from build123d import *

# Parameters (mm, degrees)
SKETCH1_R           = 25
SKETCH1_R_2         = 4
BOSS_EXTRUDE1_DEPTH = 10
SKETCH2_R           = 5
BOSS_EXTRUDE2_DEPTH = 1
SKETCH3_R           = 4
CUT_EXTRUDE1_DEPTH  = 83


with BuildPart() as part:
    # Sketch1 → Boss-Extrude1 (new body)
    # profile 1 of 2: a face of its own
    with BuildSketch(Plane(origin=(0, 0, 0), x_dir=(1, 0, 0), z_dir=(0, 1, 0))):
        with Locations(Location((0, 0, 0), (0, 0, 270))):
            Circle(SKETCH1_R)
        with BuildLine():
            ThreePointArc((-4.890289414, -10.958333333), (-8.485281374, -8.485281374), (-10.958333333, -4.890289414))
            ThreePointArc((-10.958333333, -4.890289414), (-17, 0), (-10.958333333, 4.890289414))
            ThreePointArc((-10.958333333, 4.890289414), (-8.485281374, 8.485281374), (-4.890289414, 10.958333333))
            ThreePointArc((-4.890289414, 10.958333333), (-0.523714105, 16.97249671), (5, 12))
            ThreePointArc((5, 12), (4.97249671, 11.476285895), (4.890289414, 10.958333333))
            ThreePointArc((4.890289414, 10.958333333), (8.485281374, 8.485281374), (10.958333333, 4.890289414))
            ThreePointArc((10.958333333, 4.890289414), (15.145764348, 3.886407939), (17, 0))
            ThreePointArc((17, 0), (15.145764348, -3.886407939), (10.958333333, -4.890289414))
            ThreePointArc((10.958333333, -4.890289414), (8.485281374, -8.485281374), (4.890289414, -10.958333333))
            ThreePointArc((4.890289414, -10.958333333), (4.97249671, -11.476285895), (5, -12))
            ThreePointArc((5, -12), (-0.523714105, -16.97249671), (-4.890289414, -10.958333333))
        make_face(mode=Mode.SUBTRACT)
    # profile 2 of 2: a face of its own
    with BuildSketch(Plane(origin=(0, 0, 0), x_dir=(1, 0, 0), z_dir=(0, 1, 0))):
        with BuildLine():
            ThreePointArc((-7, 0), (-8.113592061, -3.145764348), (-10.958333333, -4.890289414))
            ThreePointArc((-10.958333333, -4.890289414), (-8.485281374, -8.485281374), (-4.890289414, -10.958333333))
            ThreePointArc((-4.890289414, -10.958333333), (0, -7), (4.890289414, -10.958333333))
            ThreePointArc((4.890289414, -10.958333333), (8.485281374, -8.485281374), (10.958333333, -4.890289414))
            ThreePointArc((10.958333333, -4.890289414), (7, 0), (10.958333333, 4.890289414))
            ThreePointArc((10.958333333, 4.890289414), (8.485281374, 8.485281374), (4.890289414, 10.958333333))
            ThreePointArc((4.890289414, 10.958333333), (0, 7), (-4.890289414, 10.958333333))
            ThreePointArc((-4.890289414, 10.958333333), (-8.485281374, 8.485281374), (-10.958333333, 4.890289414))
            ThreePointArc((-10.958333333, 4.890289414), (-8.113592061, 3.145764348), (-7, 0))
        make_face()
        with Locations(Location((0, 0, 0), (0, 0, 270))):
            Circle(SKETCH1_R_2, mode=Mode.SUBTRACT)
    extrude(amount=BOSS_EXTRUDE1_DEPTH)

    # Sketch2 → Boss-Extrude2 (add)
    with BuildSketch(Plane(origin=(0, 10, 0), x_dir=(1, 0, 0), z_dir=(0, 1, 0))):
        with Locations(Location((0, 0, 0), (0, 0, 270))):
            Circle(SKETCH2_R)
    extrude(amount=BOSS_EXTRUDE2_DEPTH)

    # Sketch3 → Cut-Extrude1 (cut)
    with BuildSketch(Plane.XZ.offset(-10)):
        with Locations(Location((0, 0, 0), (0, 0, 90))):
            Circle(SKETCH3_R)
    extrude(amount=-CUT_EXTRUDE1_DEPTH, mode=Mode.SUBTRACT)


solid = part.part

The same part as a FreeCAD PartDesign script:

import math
import FreeCAD as App
import Part
import Sketcher
from FreeCAD import Vector

doc = App.newDocument("Part")
body = doc.addObject("PartDesign::Body", "Body")

sketch1 = body.newObject("Sketcher::SketchObject", "Sketch")
sketch1.AttachmentSupport = (doc.getObject("XZ_Plane"), [""])
sketch1.MapMode = "FlatFace"
sketch1.addGeometry(Part.Circle(Vector(0, 0, 0), Vector(0, 0, 1), 25), False)
sketch1.addGeometry(Part.ArcOfCircle(Part.Circle(Vector(0, 12, 0), Vector(0, 0, 1), 5), math.radians(0), math.radians(192)), False)
sketch1.addGeometry(Part.ArcOfCircle(Part.Circle(Vector(0, 12, 0), Vector(0, 0, 1), 5), math.radians(-168), math.radians(-12)), False)
sketch1.addGeometry(Part.ArcOfCircle(Part.Circle(Vector(0, 12, 0), Vector(0, 0, 1), 5), math.radians(-12.02), math.radians(0)), False)
sketch1.addGeometry(Part.ArcOfCircle(Part.Circle(Vector(12, 0, 0), Vector(0, 0, 1), 5), math.radians(0), math.radians(102)), False)
sketch1.addGeometry(Part.ArcOfCircle(Part.Circle(Vector(12, 0, 0), Vector(0, 0, 1), 5), math.radians(102), math.radians(258)), False)
sketch1.addGeometry(Part.ArcOfCircle(Part.Circle(Vector(12, 0, 0), Vector(0, 0, 1), 5), math.radians(-102), math.radians(0)), False)
sketch1.addGeometry(Part.ArcOfCircle(Part.Circle(Vector(0, -12, 0), Vector(0, 0, 1), 5), math.radians(0), math.radians(12.02)), False)
sketch1.addGeometry(Part.ArcOfCircle(Part.Circle(Vector(0, -12, 0), Vector(0, 0, 1), 5), math.radians(12), math.radians(168)), False)
sketch1.addGeometry(Part.ArcOfCircle(Part.Circle(Vector(0, -12, 0), Vector(0, 0, 1), 5), math.radians(168), math.radians(360)), False)
sketch1.addGeometry(Part.ArcOfCircle(Part.Circle(Vector(-12, 0, 0), Vector(0, 0, 1), 5), math.radians(78), math.radians(282)), False)
sketch1.addGeometry(Part.ArcOfCircle(Part.Circle(Vector(-12, 0, 0), Vector(0, 0, 1), 5), math.radians(-78), math.radians(0)), False)
sketch1.addGeometry(Part.ArcOfCircle(Part.Circle(Vector(-12, 0, 0), Vector(0, 0, 1), 5), math.radians(0), math.radians(78)), False)
sketch1.addGeometry(Part.Circle(Vector(0, 0, 0), Vector(0, 0, 1), 4), False)
sketch1.addConstraint(Sketcher.Constraint("Tangent", 1, 2, 2, 1))
sketch1.addConstraint(Sketcher.Constraint("Tangent", 2, 2, 3, 1))
sketch1.addConstraint(Sketcher.Constraint("Tangent", 3, 2, 1, 1))
sketch1.addConstraint(Sketcher.Constraint("Tangent", 4, 2, 5, 1))
sketch1.addConstraint(Sketcher.Constraint("Tangent", 5, 2, 6, 1))
sketch1.addConstraint(Sketcher.Constraint("Tangent", 6, 2, 4, 1))
sketch1.addConstraint(Sketcher.Constraint("Tangent", 7, 2, 8, 1))
sketch1.addConstraint(Sketcher.Constraint("Tangent", 8, 2, 9, 1))
sketch1.addConstraint(Sketcher.Constraint("Tangent", 9, 2, 7, 1))
sketch1.addConstraint(Sketcher.Constraint("Tangent", 10, 2, 11, 1))
sketch1.addConstraint(Sketcher.Constraint("Tangent", 11, 2, 12, 1))
sketch1.addConstraint(Sketcher.Constraint("Tangent", 12, 2, 10, 1))
sketch1.addConstraint(Sketcher.Constraint("Coincident", 0, 3, -1, 1))
sketch1.addConstraint(Sketcher.Constraint("Coincident", 13, 3, -1, 1))
sketch1.addConstraint(Sketcher.Constraint("Equal", 3, 4))
sketch1.addConstraint(Sketcher.Constraint("Equal", 6, 7))
sketch1.addConstraint(Sketcher.Constraint("Equal", 9, 10))
sketch1.addConstraint(Sketcher.Constraint("Symmetric", 1, 3, 7, 3, -1, 1))
sketch1.addConstraint(Sketcher.Constraint("Symmetric", 4, 3, 10, 3, -1, 1))
sketch1.addConstraint(Sketcher.Constraint("Symmetric", 1, 2, 2, 2, -2))
sketch1.addConstraint(Sketcher.Constraint("Symmetric", 5, 2, 10, 2, -2))
sketch1.addConstraint(Sketcher.Constraint("PointOnObject", 6, 2, -1))
sketch1.addConstraint(Sketcher.Constraint("PointOnObject", 11, 2, -1))
sketch1.addConstraint(Sketcher.Constraint("Horizontal", 2, 3, 3, 2))
sketch1.addConstraint(Sketcher.Constraint("Horizontal", 7, 2, 8, 2))
sketch1.addConstraint(Sketcher.Constraint("Horizontal", 8, 3, 9, 2))
sketch1.addConstraint(Sketcher.Constraint("Horizontal", 4, 2, 12, 2))
sketch1.addConstraint(Sketcher.Constraint("Vertical", 4, 2, 5, 2))
sketch1.addConstraint(Sketcher.Constraint("Vertical", 2, 2, 7, 2))
sketch1.addConstraint(Sketcher.Constraint("Diameter", 0, 50.0))
sketch1.addConstraint(Sketcher.Constraint("Diameter", 13, 8.0))
sketch1.addConstraint(Sketcher.Constraint("Radius", 1, 5.0))
sketch1.addConstraint(Sketcher.Constraint("DistanceY", -1, 1, 1, 3, 12.0))
sketch1.addConstraint(Sketcher.Constraint("DistanceX", -1, 1, 4, 3, 12.0))
sketch1.addConstraint(Sketcher.Constraint("DistanceX", 1, 2, -1, 1, 4.890289))
sketch1.addConstraint(Sketcher.Constraint("DistanceY", -1, 1, 4, 2, 4.890289))
pad1 = body.newObject("PartDesign::Pad", "Pad")
pad1.Profile = sketch1
pad1.Length = 10
pad1.Reversed = True

sketch2 = body.newObject("Sketcher::SketchObject", "Sketch001")
sketch2.AttachmentSupport = (doc.getObject("XZ_Plane"), [""])
sketch2.MapMode = "FlatFace"
sketch2.AttachmentOffset = App.Placement(Vector(0, 0, -10), App.Rotation())
sketch2.addGeometry(Part.Circle(Vector(0, 0, 0), Vector(0, 0, 1), 5), False)
sketch2.addConstraint(Sketcher.Constraint("Coincident", 0, 3, -1, 1))
sketch2.addConstraint(Sketcher.Constraint("Diameter", 0, 10.0))
pad2 = body.newObject("PartDesign::Pad", "Pad001")
pad2.Profile = sketch2
pad2.Length = 1
pad2.Reversed = True

sketch3 = body.newObject("Sketcher::SketchObject", "Sketch002")
sketch3.AttachmentSupport = (doc.getObject("XZ_Plane"), [""])
sketch3.MapMode = "FlatFace"
sketch3.AttachmentOffset = App.Placement(Vector(0, 0, -10), App.Rotation())
sketch3.addGeometry(Part.Circle(Vector(0, 0, 0), Vector(0, 0, 1), 4), False)
sketch3.addConstraint(Sketcher.Constraint("Coincident", 0, 3, -1, 1))
sketch3.addConstraint(Sketcher.Constraint("Diameter", 0, 8.0))
pocket1 = body.newObject("PartDesign::Pocket", "Pocket")
pocket1.Profile = sketch3
pocket1.Length = 83

doc.recompute()
